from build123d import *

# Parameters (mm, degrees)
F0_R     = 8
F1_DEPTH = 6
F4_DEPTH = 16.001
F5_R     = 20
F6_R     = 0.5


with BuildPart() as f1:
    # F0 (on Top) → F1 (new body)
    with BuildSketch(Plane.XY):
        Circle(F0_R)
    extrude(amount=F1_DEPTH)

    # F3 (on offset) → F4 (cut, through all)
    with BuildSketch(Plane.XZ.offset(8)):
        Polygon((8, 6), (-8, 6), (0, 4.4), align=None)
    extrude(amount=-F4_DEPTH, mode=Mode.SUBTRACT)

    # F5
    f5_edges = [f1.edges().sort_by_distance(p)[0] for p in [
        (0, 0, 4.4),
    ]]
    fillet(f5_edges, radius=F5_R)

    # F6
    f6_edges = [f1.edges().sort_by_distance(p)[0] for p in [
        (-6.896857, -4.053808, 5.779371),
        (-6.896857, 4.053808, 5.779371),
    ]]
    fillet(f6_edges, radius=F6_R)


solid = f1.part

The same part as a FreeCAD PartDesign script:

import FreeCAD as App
import Part
import Sketcher
Q = App.Units.Quantity


def edges_at(feature, points):
    """Names of the edges that pass closest to the given points."""
    edges = feature.Shape.Edges
    near = lambda p: min(range(len(edges)), key=lambda i: edges[i].distToShape(Part.Vertex(*p))[0])
    return sorted({f"Edge{near(p) + 1}" for p in points})

doc = App.newDocument("Part")
body = doc.addObject("PartDesign::Body", "Body")

sketch1 = body.newObject("Sketcher::SketchObject", "Sketch")
sketch1.AttachmentSupport = (doc.getObject("XY_Plane"), [""])
sketch1.MapMode = "FlatFace"
sketch1.addGeometry(Part.Circle(App.Vector(0, 0, 0), App.Vector(0, 0, 1), 8), False)
sketch1.addConstraint([
    Sketcher.Constraint("Coincident", 0, 3, -1, 1),
    Sketcher.Constraint("Diameter", 0, Q("16 mm")),
])
pad1 = body.newObject("PartDesign::Pad", "Pad")
pad1.Profile = sketch1
pad1.Length = 6

sketch2 = body.newObject("Sketcher::SketchObject", "Sketch001")
sketch2.AttachmentSupport = (doc.getObject("XZ_Plane"), [""])
sketch2.MapMode = "FlatFace"
sketch2.AttachmentOffset = App.Placement(App.Vector(0, 0, 8), App.Rotation())
sketch2.addGeometry([
    Part.LineSegment(App.Vector(8, 6, 0), App.Vector(-8, 6, 0)),
    Part.LineSegment(App.Vector(-8, 6, 0), App.Vector(0, 4.4, 0)),
    Part.LineSegment(App.Vector(0, 4.4, 0), App.Vector(8, 6, 0)),
], False)
sketch2.addConstraint([
    Sketcher.Constraint("Coincident", 0, 2, 1, 1),
    Sketcher.Constraint("Coincident", 1, 2, 2, 1),
    Sketcher.Constraint("Coincident", 2, 2, 0, 1),
    Sketcher.Constraint("Horizontal", 0),
    Sketcher.Constraint("PointOnObject", 1, 2, -2),
    Sketcher.Constraint("Equal", 1, 2),
    Sketcher.Constraint("DistanceX", 0, 2, 0, 1, Q("16 mm")),
    Sketcher.Constraint("DistanceY", -1, 1, 0, 2, Q("6 mm")),
    Sketcher.Constraint("DistanceY", -1, 1, 1, 2, Q("4.4 mm")),
])
pocket1 = body.newObject("PartDesign::Pocket", "Pocket")
pocket1.Profile = sketch2
pocket1.Type = "ThroughAll"
doc.recompute()

fillet = body.newObject("PartDesign::Fillet", "Fillet")
fillet.Base = (pocket1, edges_at(pocket1, [(0, 0, 4.4)]))
fillet.Radius = 20
doc.recompute()

fillet2 = body.newObject("PartDesign::Fillet", "Fillet001")
fillet2.Base = (fillet, edges_at(fillet, [(-6.897, -4.054, 5.779), (-6.897, 4.054, 5.779)]))
fillet2.Radius = 0.5

doc.recompute()
